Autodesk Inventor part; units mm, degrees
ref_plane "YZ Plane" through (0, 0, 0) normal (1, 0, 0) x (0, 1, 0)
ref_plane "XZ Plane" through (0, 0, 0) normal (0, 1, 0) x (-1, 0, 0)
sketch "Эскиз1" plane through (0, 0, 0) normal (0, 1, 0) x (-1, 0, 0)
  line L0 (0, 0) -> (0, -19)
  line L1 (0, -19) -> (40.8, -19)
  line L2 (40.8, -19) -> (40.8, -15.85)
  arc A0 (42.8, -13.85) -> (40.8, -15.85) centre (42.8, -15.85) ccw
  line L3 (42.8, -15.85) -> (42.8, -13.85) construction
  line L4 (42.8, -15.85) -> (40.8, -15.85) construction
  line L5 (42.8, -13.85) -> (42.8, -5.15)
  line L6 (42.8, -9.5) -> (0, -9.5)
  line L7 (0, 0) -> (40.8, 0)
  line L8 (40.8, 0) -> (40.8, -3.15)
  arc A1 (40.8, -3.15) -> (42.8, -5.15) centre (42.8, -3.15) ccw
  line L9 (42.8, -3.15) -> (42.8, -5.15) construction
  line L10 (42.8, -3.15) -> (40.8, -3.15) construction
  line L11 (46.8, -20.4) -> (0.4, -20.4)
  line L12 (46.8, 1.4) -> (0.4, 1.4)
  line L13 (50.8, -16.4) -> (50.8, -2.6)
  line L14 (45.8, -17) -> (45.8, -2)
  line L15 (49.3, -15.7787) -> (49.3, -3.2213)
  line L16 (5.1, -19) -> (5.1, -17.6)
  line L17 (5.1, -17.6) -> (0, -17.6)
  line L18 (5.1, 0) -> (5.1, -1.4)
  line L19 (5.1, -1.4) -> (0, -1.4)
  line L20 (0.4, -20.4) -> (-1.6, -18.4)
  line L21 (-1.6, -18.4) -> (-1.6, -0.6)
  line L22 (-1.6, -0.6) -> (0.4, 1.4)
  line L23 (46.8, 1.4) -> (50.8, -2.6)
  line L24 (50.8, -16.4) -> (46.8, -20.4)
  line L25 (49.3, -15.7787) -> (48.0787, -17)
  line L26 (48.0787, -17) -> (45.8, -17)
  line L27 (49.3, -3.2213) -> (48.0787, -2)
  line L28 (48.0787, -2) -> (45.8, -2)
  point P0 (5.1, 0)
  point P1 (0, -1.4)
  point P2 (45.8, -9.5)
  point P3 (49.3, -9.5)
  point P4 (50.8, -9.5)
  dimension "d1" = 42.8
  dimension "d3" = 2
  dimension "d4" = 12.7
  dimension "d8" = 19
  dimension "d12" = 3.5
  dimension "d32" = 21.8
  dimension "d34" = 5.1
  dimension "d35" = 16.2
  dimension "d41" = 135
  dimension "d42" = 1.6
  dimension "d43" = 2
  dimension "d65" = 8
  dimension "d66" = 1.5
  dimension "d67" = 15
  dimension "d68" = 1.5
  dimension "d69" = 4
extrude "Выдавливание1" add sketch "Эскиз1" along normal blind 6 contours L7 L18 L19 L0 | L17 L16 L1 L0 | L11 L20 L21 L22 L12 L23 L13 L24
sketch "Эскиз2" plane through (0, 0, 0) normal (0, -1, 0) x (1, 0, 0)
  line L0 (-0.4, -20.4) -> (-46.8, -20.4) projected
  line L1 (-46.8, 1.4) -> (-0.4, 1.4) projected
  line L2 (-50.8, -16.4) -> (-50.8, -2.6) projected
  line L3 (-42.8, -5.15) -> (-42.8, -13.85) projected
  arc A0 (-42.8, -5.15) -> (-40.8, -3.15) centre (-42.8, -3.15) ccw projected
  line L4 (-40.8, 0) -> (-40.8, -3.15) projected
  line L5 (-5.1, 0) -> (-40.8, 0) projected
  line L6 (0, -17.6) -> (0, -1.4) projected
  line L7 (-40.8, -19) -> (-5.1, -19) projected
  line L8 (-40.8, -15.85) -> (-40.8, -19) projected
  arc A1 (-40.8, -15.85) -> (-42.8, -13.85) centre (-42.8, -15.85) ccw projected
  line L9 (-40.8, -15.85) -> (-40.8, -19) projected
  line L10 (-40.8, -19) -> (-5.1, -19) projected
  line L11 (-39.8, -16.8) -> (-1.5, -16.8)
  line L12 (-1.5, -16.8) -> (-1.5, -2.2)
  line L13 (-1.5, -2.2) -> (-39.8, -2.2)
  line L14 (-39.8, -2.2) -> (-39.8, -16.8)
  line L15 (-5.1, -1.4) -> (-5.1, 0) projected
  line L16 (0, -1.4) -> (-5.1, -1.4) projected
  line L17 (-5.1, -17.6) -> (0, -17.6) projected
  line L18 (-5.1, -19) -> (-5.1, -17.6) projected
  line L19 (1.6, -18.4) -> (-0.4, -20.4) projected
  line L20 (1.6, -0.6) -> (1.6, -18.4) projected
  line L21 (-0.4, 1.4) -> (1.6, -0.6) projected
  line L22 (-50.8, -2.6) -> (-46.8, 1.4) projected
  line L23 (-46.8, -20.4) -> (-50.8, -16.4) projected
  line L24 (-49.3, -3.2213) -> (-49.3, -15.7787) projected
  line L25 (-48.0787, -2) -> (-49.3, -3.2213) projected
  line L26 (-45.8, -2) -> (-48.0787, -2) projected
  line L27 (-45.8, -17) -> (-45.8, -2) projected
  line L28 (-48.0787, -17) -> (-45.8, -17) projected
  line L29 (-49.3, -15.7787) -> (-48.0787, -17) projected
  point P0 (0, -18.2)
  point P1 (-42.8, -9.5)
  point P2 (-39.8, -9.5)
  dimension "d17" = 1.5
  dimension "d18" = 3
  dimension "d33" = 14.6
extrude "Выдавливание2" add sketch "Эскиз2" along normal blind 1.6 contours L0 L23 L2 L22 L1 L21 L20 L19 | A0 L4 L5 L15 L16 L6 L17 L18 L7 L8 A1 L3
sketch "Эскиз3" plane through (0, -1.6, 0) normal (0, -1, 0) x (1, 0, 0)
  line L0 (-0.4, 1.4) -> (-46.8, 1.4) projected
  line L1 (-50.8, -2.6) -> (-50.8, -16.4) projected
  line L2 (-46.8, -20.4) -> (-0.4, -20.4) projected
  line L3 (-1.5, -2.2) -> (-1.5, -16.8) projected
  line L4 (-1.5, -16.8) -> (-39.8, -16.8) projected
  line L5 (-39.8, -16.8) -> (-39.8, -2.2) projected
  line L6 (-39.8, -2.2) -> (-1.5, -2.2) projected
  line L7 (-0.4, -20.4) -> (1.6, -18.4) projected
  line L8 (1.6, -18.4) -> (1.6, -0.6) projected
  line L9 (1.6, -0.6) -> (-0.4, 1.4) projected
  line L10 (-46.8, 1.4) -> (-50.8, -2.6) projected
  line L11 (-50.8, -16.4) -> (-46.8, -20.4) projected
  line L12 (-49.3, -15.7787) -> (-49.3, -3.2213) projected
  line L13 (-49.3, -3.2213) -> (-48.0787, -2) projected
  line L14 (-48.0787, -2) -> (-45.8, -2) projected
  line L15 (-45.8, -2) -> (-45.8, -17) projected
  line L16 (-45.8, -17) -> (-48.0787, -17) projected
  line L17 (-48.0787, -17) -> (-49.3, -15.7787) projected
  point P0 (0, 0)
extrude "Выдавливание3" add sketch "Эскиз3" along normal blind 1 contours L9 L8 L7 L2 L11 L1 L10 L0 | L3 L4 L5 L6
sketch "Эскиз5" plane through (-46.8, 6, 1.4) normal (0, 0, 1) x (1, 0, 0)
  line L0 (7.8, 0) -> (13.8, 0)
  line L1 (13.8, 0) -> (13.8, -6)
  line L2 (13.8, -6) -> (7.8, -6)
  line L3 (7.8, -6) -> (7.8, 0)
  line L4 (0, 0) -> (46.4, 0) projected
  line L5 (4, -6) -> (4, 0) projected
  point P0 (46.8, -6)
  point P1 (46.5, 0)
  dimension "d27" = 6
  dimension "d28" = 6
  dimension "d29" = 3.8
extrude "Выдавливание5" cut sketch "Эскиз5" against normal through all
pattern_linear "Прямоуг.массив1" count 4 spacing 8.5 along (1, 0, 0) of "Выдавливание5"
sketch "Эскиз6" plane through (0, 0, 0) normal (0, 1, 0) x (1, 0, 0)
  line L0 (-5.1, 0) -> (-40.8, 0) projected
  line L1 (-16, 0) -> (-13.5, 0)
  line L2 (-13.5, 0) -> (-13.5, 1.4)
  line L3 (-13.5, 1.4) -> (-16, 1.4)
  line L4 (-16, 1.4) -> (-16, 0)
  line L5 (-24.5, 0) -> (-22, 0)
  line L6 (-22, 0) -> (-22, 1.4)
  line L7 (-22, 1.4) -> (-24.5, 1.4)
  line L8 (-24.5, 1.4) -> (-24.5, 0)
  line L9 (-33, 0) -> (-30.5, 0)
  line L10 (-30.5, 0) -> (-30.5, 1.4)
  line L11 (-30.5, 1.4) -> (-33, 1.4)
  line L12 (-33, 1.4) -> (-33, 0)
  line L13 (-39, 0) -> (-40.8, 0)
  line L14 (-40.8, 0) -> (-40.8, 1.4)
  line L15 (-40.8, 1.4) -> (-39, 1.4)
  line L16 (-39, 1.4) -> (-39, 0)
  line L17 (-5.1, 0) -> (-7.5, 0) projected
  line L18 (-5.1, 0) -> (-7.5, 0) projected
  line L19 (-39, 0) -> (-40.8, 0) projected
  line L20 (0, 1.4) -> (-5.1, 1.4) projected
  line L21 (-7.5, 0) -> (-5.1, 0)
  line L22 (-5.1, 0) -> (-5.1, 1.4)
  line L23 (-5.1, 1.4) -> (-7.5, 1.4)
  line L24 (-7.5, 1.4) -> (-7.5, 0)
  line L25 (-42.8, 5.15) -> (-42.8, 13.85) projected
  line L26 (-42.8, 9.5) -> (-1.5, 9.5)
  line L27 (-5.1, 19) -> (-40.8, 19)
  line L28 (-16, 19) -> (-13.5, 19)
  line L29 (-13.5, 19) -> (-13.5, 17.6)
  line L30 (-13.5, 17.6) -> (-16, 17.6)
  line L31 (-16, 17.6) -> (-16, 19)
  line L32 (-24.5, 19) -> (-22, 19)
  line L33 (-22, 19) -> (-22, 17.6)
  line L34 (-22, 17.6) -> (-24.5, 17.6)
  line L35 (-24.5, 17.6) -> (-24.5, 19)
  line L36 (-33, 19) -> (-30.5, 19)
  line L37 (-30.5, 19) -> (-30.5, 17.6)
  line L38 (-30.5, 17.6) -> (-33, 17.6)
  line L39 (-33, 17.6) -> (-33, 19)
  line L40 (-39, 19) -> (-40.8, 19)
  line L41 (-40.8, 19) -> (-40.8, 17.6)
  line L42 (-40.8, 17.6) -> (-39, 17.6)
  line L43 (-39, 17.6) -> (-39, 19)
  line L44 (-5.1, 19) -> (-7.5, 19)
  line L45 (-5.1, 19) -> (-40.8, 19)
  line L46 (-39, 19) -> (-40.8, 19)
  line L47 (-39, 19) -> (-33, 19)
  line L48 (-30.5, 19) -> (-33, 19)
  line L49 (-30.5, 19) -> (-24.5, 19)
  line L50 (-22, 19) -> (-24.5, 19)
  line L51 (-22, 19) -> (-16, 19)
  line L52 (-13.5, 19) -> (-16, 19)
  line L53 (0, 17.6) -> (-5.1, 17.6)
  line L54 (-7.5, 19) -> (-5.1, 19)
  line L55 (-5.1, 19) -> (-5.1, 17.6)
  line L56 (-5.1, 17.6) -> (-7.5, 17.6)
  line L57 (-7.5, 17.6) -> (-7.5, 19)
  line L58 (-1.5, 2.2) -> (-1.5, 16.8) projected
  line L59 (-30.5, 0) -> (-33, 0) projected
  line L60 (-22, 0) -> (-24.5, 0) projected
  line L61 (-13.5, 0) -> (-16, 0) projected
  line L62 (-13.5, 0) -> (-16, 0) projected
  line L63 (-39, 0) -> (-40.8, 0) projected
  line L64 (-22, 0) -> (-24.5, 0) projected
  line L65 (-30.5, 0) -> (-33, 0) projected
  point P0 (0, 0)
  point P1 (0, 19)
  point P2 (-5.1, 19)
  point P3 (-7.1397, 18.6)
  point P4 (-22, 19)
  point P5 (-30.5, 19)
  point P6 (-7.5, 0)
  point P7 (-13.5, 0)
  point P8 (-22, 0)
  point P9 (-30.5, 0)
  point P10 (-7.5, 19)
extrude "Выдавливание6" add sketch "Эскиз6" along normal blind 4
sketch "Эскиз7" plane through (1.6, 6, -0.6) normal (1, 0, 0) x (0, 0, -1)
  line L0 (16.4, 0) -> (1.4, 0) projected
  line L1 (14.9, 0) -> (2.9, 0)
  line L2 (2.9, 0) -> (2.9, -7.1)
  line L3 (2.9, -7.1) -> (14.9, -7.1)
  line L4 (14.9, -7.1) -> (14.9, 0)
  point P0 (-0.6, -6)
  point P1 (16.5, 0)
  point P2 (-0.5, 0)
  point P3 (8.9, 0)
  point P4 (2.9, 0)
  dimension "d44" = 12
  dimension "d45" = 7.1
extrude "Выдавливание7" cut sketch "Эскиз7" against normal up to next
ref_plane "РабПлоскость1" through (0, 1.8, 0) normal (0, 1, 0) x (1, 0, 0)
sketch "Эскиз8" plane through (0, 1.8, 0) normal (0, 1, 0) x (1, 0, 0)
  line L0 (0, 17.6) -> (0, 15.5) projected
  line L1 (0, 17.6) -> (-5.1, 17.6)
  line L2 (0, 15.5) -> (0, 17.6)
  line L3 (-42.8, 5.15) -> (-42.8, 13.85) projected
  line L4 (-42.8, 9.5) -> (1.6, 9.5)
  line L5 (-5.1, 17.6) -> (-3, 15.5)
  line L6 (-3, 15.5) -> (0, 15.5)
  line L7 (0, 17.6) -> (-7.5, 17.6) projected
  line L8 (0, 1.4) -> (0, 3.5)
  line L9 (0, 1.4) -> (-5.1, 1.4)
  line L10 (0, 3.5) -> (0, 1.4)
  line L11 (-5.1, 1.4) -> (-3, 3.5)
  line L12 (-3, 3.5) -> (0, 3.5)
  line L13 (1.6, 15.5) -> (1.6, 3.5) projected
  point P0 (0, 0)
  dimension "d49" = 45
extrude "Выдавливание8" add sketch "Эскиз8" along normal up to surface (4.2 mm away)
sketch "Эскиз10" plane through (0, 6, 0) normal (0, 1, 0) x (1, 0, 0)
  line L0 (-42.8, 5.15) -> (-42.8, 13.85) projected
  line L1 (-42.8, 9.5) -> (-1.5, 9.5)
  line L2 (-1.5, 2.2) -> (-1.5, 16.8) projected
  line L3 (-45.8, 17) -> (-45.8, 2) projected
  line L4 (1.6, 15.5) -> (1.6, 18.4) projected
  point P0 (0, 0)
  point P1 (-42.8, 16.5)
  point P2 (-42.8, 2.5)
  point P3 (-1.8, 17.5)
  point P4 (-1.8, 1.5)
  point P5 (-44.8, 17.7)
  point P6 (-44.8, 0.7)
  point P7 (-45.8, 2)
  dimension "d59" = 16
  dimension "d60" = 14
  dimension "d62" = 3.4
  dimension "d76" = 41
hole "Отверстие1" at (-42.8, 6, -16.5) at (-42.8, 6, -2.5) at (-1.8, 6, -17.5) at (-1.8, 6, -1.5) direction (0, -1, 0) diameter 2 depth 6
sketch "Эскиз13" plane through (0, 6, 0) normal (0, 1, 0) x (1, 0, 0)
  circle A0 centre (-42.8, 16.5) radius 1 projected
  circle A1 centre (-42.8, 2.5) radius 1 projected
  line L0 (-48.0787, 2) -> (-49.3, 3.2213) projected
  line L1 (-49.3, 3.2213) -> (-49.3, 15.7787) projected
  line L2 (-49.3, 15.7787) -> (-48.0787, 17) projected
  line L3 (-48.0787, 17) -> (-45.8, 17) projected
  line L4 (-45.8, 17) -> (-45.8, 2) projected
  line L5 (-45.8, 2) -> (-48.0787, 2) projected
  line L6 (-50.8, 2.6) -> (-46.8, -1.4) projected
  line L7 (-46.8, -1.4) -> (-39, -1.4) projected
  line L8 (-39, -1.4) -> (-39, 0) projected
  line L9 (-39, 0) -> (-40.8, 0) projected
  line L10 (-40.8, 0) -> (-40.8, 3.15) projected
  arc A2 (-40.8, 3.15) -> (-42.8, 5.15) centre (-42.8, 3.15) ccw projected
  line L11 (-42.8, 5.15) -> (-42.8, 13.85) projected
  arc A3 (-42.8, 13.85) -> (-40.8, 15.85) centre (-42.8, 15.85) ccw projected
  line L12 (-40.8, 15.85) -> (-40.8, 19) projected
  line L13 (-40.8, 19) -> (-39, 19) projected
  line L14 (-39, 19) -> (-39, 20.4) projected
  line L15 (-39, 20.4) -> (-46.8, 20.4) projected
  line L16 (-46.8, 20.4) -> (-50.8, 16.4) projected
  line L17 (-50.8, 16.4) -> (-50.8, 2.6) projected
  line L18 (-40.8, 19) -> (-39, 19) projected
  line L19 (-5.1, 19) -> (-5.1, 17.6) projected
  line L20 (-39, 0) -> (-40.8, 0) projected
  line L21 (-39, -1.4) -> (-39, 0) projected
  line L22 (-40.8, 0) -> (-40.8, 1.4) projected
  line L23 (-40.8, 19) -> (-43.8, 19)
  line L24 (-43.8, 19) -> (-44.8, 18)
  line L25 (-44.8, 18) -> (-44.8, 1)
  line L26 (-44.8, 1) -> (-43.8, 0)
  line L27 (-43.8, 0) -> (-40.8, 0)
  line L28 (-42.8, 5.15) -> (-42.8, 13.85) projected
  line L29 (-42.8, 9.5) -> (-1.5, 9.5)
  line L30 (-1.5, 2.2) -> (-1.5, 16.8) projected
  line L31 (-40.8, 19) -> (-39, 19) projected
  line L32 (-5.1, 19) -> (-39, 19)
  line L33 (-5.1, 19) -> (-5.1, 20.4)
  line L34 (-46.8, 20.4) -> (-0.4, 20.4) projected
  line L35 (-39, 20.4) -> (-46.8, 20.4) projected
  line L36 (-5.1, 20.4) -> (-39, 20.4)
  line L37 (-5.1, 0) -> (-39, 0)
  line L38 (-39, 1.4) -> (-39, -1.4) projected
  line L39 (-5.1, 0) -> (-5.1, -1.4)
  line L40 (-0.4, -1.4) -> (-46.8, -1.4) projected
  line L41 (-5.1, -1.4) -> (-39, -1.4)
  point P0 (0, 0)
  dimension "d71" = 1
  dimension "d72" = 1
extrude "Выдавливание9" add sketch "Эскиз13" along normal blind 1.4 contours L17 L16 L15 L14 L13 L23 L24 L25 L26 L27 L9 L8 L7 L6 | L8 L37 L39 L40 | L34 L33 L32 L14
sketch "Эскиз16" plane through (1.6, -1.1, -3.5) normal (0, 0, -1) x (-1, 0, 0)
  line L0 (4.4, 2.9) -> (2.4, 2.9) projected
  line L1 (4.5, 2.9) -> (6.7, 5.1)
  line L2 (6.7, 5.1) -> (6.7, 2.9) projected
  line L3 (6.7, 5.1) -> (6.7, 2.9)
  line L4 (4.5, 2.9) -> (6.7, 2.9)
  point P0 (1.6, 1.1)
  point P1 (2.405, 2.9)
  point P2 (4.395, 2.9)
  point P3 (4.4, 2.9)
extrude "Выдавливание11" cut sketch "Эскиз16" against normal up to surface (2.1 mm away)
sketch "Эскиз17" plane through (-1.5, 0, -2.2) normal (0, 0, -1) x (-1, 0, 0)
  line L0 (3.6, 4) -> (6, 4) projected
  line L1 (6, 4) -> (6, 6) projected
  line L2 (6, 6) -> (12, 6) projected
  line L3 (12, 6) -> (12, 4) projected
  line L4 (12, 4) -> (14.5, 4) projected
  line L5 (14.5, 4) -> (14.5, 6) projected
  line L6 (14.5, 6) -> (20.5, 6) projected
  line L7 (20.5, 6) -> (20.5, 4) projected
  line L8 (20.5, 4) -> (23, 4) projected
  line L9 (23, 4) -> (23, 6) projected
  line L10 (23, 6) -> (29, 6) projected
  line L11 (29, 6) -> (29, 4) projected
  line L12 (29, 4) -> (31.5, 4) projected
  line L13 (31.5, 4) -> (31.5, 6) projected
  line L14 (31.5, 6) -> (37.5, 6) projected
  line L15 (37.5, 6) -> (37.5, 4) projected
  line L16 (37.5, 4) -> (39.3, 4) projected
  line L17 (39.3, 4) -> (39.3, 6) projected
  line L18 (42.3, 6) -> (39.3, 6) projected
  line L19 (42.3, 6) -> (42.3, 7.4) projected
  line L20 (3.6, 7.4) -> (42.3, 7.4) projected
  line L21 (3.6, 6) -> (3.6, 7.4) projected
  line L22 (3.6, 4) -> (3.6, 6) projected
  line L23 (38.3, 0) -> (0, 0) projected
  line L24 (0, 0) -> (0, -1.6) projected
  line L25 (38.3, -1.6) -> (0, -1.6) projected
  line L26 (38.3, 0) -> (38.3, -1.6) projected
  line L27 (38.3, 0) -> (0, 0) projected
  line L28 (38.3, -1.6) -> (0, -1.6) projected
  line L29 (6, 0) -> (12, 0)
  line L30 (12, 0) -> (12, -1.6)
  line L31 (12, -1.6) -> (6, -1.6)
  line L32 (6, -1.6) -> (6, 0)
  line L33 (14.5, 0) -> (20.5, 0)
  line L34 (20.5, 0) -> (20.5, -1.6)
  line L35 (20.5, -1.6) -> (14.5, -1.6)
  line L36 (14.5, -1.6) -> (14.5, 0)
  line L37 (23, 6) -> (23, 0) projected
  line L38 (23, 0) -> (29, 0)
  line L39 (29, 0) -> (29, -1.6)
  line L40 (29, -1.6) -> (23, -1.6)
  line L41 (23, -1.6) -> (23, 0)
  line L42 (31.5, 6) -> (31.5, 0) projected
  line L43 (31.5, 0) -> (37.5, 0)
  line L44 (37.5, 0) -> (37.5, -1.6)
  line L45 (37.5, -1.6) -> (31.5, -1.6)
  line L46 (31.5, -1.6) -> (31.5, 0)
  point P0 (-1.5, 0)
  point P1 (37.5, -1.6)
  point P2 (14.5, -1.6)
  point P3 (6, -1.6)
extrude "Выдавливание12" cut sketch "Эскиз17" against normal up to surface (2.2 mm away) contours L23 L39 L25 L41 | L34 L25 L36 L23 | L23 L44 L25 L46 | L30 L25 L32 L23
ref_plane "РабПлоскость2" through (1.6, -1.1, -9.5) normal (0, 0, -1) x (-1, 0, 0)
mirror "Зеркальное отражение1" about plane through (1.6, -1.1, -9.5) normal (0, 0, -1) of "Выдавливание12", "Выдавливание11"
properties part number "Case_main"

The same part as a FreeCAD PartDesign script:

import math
import FreeCAD as App
import Part
import Sketcher
from FreeCAD import Vector


def add_polygon(sketch, points):
    """Adds a closed chain of lines whose ends are joined by coincident constraints."""
    first, n = sketch.GeometryCount, len(points)
    for a, b in zip(points, points[1:] + points[:1]):
        sketch.addGeometry(Part.LineSegment(App.Vector(*a, 0), App.Vector(*b, 0)), False)
    for i in range(n):
        sketch.addConstraint(Sketcher.Constraint("Coincident", first + i, 2, first + (i + 1) % n, 1))

doc = App.newDocument("Part")
body = doc.addObject("PartDesign::Body", "Body")

sketch1 = body.newObject("Sketcher::SketchObject", "Sketch")
sketch1.AttachmentSupport = (doc.getObject("XZ_Plane"), [""])
sketch1.MapMode = "FlatFace"
add_polygon(sketch1, [(-0.4, -20.4), (-46.8, -20.4), (-50.8, -16.4), (-50.8, -2.6), (-46.8, 1.4), (-0.4, 1.4), (1.6, -0.6), (1.6, -18.4)])
sketch1.addGeometry(Part.LineSegment(Vector(-5.1, -1.4, 0), Vector(-5.1, 0, 0)), False)
sketch1.addGeometry(Part.LineSegment(Vector(-5.1, 0, 0), Vector(-40.8, 0, 0)), False)
sketch1.addGeometry(Part.LineSegment(Vector(-40.8, 0, 0), Vector(-40.8, -3.1, 0)), False)
sketch1.addGeometry(Part.ArcOfCircle(Part.Circle(Vector(-42.8, -3.1, 0), Vector(0, 0, 1), 2), math.radians(-90), math.radians(0)), False)
sketch1.addGeometry(Part.LineSegment(Vector(-42.8, -5.2, 0), Vector(-42.8, -13.8, 0)), False)
sketch1.addGeometry(Part.ArcOfCircle(Part.Circle(Vector(-42.8, -15.8, 0), Vector(0, 0, 1), 2), math.radians(0), math.radians(90)), False)
sketch1.addGeometry(Part.LineSegment(Vector(-40.8, -15.8, 0), Vector(-40.8, -19, 0)), False)
sketch1.addGeometry(Part.LineSegment(Vector(-40.8, -19, 0), Vector(-5.1, -19, 0)), False)
sketch1.addGeometry(Part.LineSegment(Vector(-5.1, -19, 0), Vector(-5.1, -17.6, 0)), False)
sketch1.addGeometry(Part.LineSegment(Vector(-5.1, -17.6, 0), Vector(0, -17.6, 0)), False)
sketch1.addGeometry(Part.LineSegment(Vector(0, -17.6, 0), Vector(0, -1.4, 0)), False)
sketch1.addGeometry(Part.LineSegment(Vector(0, -1.4, 0), Vector(-5.1, -1.4, 0)), False)
add_polygon(sketch1, [(-45.8, -2), (-48.1, -2), (-49.3, -3.2), (-49.3, -15.8), (-48.1, -17), (-45.8, -17)])
sketch1.addConstraint(Sketcher.Constraint("Coincident", 8, 2, 9, 1))
sketch1.addConstraint(Sketcher.Constraint("Coincident", 9, 2, 10, 1))
sketch1.addConstraint(Sketcher.Constraint("Tangent", 10, 2, 11, 2))
sketch1.addConstraint(Sketcher.Constraint("Coincident", 11, 1, 12, 1))
sketch1.addConstraint(Sketcher.Constraint("Coincident", 12, 2, 13, 2))
sketch1.addConstraint(Sketcher.Constraint("Tangent", 13, 1, 14, 1))
sketch1.addConstraint(Sketcher.Constraint("Coincident", 14, 2, 15, 1))
sketch1.addConstraint(Sketcher.Constraint("Coincident", 15, 2, 16, 1))
sketch1.addConstraint(Sketcher.Constraint("Coincident", 16, 2, 17, 1))
sketch1.addConstraint(Sketcher.Constraint("Coincident", 17, 2, 18, 1))
sketch1.addConstraint(Sketcher.Constraint("Coincident", 18, 2, 19, 1))
sketch1.addConstraint(Sketcher.Constraint("Coincident", 19, 2, 8, 1))
sketch1.addConstraint(Sketcher.Constraint("Horizontal", 0))
sketch1.addConstraint(Sketcher.Constraint("Vertical", 2))
sketch1.addConstraint(Sketcher.Constraint("Horizontal", 4))
sketch1.addConstraint(Sketcher.Constraint("Vertical", 6))
sketch1.addConstraint(Sketcher.Constraint("Vertical", 8))
sketch1.addConstraint(Sketcher.Constraint("Horizontal", 9))
sketch1.addConstraint(Sketcher.Constraint("Vertical", 10))
sketch1.addConstraint(Sketcher.Constraint("Vertical", 12))
sketch1.addConstraint(Sketcher.Constraint("Vertical", 14))
sketch1.addConstraint(Sketcher.Constraint("Horizontal", 15))
sketch1.addConstraint(Sketcher.Constraint("Vertical", 16))
sketch1.addConstraint(Sketcher.Constraint("Horizontal", 17))
sketch1.addConstraint(Sketcher.Constraint("Vertical", 18))
sketch1.addConstraint(Sketcher.Constraint("Horizontal", 19))
sketch1.addConstraint(Sketcher.Constraint("Horizontal", 20))
sketch1.addConstraint(Sketcher.Constraint("Vertical", 22))
sketch1.addConstraint(Sketcher.Constraint("Horizontal", 24))
sketch1.addConstraint(Sketcher.Constraint("Vertical", 25))
sketch1.addConstraint(Sketcher.Constraint("Equal", 11, 13))
sketch1.addConstraint(Sketcher.Constraint("PointOnObject", 8, 2, -1))
sketch1.addConstraint(Sketcher.Constraint("PointOnObject", 17, 2, -2))
sketch1.addConstraint(Sketcher.Constraint("Perpendicular", 1, 3))
sketch1.addConstraint(Sketcher.Constraint("Perpendicular", 3, 5))
sketch1.addConstraint(Sketcher.Constraint("Perpendicular", 5, 7))
sketch1.addConstraint(Sketcher.Constraint("Parallel", 7, 21))
sketch1.addConstraint(Sketcher.Constraint("Perpendicular", 21, 23))
sketch1.addConstraint(Sketcher.Constraint("Vertical", 11, 3, 13, 3))
sketch1.addConstraint(Sketcher.Constraint("Vertical", 0, 2, 3, 2))
sketch1.addConstraint(Sketcher.Constraint("Vertical", 4, 2, 7, 2))
sketch1.addConstraint(Sketcher.Constraint("Vertical", 13, 3, 11, 1))
sketch1.addConstraint(Sketcher.Constraint("Vertical", 8, 2, 15, 2))
sketch1.addConstraint(Sketcher.Constraint("Vertical", 20, 2, 23, 2))
sketch1.addConstraint(Sketcher.Constraint("Equal", 10, 14))
sketch1.addConstraint(Sketcher.Constraint("Equal", 8, 16))
sketch1.addConstraint(Sketcher.Constraint("Equal", 1, 3))
sketch1.addConstraint(Sketcher.Constraint("Radius", 11, 2.0))
sketch1.addConstraint(Sketcher.Constraint("DistanceY", 25, 1, 25, 2, 15.0))
sketch1.addConstraint(Sketcher.Constraint("DistanceX", 17, 1, 17, 2, 5.1))
sketch1.addConstraint(Sketcher.Constraint("DistanceY", 18, 1, 18, 2, 16.2))
sketch1.addConstraint(Sketcher.Constraint("DistanceY", 14, 2, -1, 1, 19.0))
sketch1.addConstraint(Sketcher.Constraint("DistanceY", 20, 2, -1, 1, 2.0))
sketch1.addConstraint(Sketcher.Constraint("DistanceX", 0, 2, 13, 3, 4.0))
sketch1.addConstraint(Sketcher.Constraint("DistanceX", 1, 2, 0, 2, 4.0))
sketch1.addConstraint(Sketcher.Constraint("DistanceX", 4, 2, 5, 2, 2.0))
sketch1.addConstraint(Sketcher.Constraint("DistanceX", 11, 3, -1, 1, 42.8))
sketch1.addConstraint(Sketcher.Constraint("DistanceX", -1, 1, 5, 2, 1.6))
sketch1.addConstraint(Sketcher.Constraint("DistanceY", 13, 3, 11, 3, 12.7))
sketch1.addConstraint(Sketcher.Constraint("DistanceY", 0, 2, 3, 2, 21.8))
sketch1.addConstraint(Sketcher.Constraint("DistanceX", 2, 2, 21, 2, 1.5))
sketch1.addConstraint(Sketcher.Constraint("DistanceX", 22, 2, 24, 2, 3.5))
sketch1.addConstraint(Sketcher.Constraint("DistanceY", 16, 2, 5, 2, 17.0))
sketch1.addConstraint(Sketcher.Constraint("DistanceX", 20, 2, 20, 1, 2.2787))
pad1 = body.newObject("PartDesign::Pad", "Pad")
pad1.Profile = sketch1
pad1.Length = 6
pad1.Reversed = True

sketch2 = body.newObject("Sketcher::SketchObject", "Sketch001")
sketch2.AttachmentSupport = (doc.getObject("XZ_Plane"), [""])
sketch2.MapMode = "FlatFace"
add_polygon(sketch2, [(-46.8, -20.4), (-0.4, -20.4), (1.6, -18.4), (1.6, -0.6), (-0.4, 1.4), (-46.8, 1.4), (-50.8, -2.6), (-50.8, -16.4)])
add_polygon(sketch2, [(-49.3, -15.8), (-49.3, -3.2), (-48.1, -2), (-45.8, -2), (-45.8, -17), (-48.1, -17)])
add_polygon(sketch2, [(-1.5, -16.8), (-39.8, -16.8), (-39.8, -2.2), (-1.5, -2.2)])
sketch2.addConstraint(Sketcher.Constraint("Horizontal", 0))
sketch2.addConstraint(Sketcher.Constraint("Vertical", 2))
sketch2.addConstraint(Sketcher.Constraint("Horizontal", 4))
sketch2.addConstraint(Sketcher.Constraint("Vertical", 6))
sketch2.addConstraint(Sketcher.Constraint("Vertical", 8))
sketch2.addConstraint(Sketcher.Constraint("Horizontal", 10))
sketch2.addConstraint(Sketcher.Constraint("Vertical", 11))
sketch2.addConstraint(Sketcher.Constraint("Horizontal", 12))
sketch2.addConstraint(Sketcher.Constraint("Horizontal", 14))
sketch2.addConstraint(Sketcher.Constraint("Vertical", 15))
sketch2.addConstraint(Sketcher.Constraint("Horizontal", 16))
sketch2.addConstraint(Sketcher.Constraint("Vertical", 17))
sketch2.addConstraint(Sketcher.Constraint("Perpendicular", 1, 3))
sketch2.addConstraint(Sketcher.Constraint("Perpendicular", 3, 5))
sketch2.addConstraint(Sketcher.Constraint("Perpendicular", 5, 7))
sketch2.addConstraint(Sketcher.Constraint("Perpendicular", 7, 9))
sketch2.addConstraint(Sketcher.Constraint("Perpendicular", 9, 13))
sketch2.addConstraint(Sketcher.Constraint("Vertical", 0, 2, 3, 2))
sketch2.addConstraint(Sketcher.Constraint("Vertical", 4, 2, 7, 2))
sketch2.addConstraint(Sketcher.Constraint("Vertical", 9, 2, 12, 2))
sketch2.addConstraint(Sketcher.Constraint("Equal", 1, 3))
sketch2.addConstraint(Sketcher.Constraint("DistanceY", 15, 1, 15, 2, 14.6))
sketch2.addConstraint(Sketcher.Constraint("DistanceX", 16, 2, -1, 1, 1.5))
sketch2.addConstraint(Sketcher.Constraint("DistanceX", 5, 2, 8, 2, 1.5))
sketch2.addConstraint(Sketcher.Constraint("DistanceY", 11, 2, 11, 1, 15.0))
sketch2.addConstraint(Sketcher.Constraint("DistanceX", 0, 1, 0, 2, 46.4))
sketch2.addConstraint(Sketcher.Constraint("DistanceX", 14, 2, 14, 1, 38.3))
sketch2.addConstraint(Sketcher.Constraint("DistanceY", 2, 1, 2, 2, 17.8))
sketch2.addConstraint(Sketcher.Constraint("DistanceY", 6, 2, 6, 1, 13.8))
sketch2.addConstraint(Sketcher.Constraint("DistanceY", 9, 2, -1, 1, 2.0))
sketch2.addConstraint(Sketcher.Constraint("DistanceX", 0, 2, 1, 2, 2.0))
sketch2.addConstraint(Sketcher.Constraint("DistanceX", 4, 2, 10, 2, 1.0))
sketch2.addConstraint(Sketcher.Constraint("DistanceX", 11, 2, 14, 2, 6.0))
sketch2.addConstraint(Sketcher.Constraint("DistanceY", 0, 2, -1, 1, 20.4))
sketch2.addConstraint(Sketcher.Constraint("DistanceY", 14, 2, -1, 1, 16.8))
sketch2.addConstraint(Sketcher.Constraint("DistanceX", 10, 1, 10, 2, 2.2787))
pad2 = body.newObject("PartDesign::Pad", "Pad001")
pad2.Profile = sketch2
pad2.Length = 1.6

sketch3 = body.newObject("Sketcher::SketchObject", "Sketch002")
sketch3.AttachmentSupport = (doc.getObject("XZ_Plane"), [""])
sketch3.MapMode = "FlatFace"
sketch3.AttachmentOffset = App.Placement(Vector(0, 0, 1.6), App.Rotation())
add_polygon(sketch3, [(1.6, -0.6), (-0.4, 1.4), (-46.8, 1.4), (-50.8, -2.6), (-50.8, -16.4), (-46.8, -20.4), (-0.4, -20.4), (1.6, -18.4)])
add_polygon(sketch3, [(-48.1, -17), (-49.3, -15.8), (-49.3, -3.2), (-48.1, -2), (-45.8, -2), (-45.8, -17)])
sketch3.addConstraint(Sketcher.Constraint("Horizontal", 1))
sketch3.addConstraint(Sketcher.Constraint("Vertical", 3))
sketch3.addConstraint(Sketcher.Constraint("Horizontal", 5))
sketch3.addConstraint(Sketcher.Constraint("Vertical", 7))
sketch3.addConstraint(Sketcher.Constraint("Vertical", 9))
sketch3.addConstraint(Sketcher.Constraint("Horizontal", 11))
sketch3.addConstraint(Sketcher.Constraint("Vertical", 12))
sketch3.addConstraint(Sketcher.Constraint("Horizontal", 13))
sketch3.addConstraint(Sketcher.Constraint("Perpendicular", 0, 2))
sketch3.addConstraint(Sketcher.Constraint("Perpendicular", 2, 4))
sketch3.addConstraint(Sketcher.Constraint("Perpendicular", 4, 6))
sketch3.addConstraint(Sketcher.Constraint("Perpendicular", 6, 8))
sketch3.addConstraint(Sketcher.Constraint("Perpendicular", 8, 10))
sketch3.addConstraint(Sketcher.Constraint("Vertical", 1, 2, 4, 2))
sketch3.addConstraint(Sketcher.Constraint("Vertical", 0, 2, 5, 2))
sketch3.addConstraint(Sketcher.Constraint("Vertical", 10, 2, 13, 2))
sketch3.addConstraint(Sketcher.Constraint("Equal", 2, 4))
sketch3.addConstraint(Sketcher.Constraint("DistanceY", 12, 2, 12, 1, 15.0))
sketch3.addConstraint(Sketcher.Constraint("DistanceX", 1, 2, 1, 1, 46.4))
sketch3.addConstraint(Sketcher.Constraint("DistanceY", 3, 2, 3, 1, 13.8))
sketch3.addConstraint(Sketcher.Constraint("DistanceY", 7, 1, 7, 2, 17.8))
sketch3.addConstraint(Sketcher.Constraint("DistanceY", 10, 2, -1, 1, 2.0))
sketch3.addConstraint(Sketcher.Constraint("DistanceX", 2, 2, 1, 2, 4.0))
sketch3.addConstraint(Sketcher.Constraint("DistanceX", 1, 2, 11, 2, 1.0))
sketch3.addConstraint(Sketcher.Constraint("DistanceX", 0, 2, -1, 1, 0.4))
sketch3.addConstraint(Sketcher.Constraint("DistanceY", -1, 1, 0, 2, 1.4))
sketch3.addConstraint(Sketcher.Constraint("DistanceX", 8, 2, -1, 1, 49.3))
sketch3.addConstraint(Sketcher.Constraint("DistanceX", 11, 1, 11, 2, 2.2787))
pad3 = body.newObject("PartDesign::Pad", "Pad002")
pad3.Profile = sketch3
pad3.Length = 1

sketch4 = body.newObject("Sketcher::SketchObject", "Sketch003")
sketch4.AttachmentSupport = (doc.getObject("XY_Plane"), [""])
sketch4.MapMode = "FlatFace"
sketch4.AttachmentOffset = App.Placement(Vector(0, 0, 1.4), App.Rotation())
add_polygon(sketch4, [(-33, 6), (-39, 6), (-39, 0), (-33, 0)])
sketch4.addConstraint(Sketcher.Constraint("Horizontal", 0))
sketch4.addConstraint(Sketcher.Constraint("Vertical", 1))
sketch4.addConstraint(Sketcher.Constraint("Horizontal", 2))
sketch4.addConstraint(Sketcher.Constraint("Vertical", 3))
sketch4.addConstraint(Sketcher.Constraint("PointOnObject", 1, 2, -1))
sketch4.addConstraint(Sketcher.Constraint("Equal", 2, 1))
sketch4.addConstraint(Sketcher.Constraint("DistanceX", 0, 2, 0, 1, 6.0))
sketch4.addConstraint(Sketcher.Constraint("DistanceX", 0, 2, -1, 1, 39.0))
pocket1 = body.newObject("PartDesign::Pocket", "Pocket")
pocket1.Profile = sketch4
pocket1.Type = "ThroughAll"
doc.recompute()

linearpattern = body.newObject("PartDesign::LinearPattern", "LinearPattern")
linearpattern.Originals = [pocket1]
linearpattern.Direction = (doc.getObject("X_Axis"), [""])
linearpattern.Mode = "offset"
linearpattern.Offset = 8.5
linearpattern.Occurrences = 4
body.Tip = linearpattern

sketch5 = body.newObject("Sketcher::SketchObject", "Sketch004")
sketch5.AttachmentSupport = (doc.getObject("XZ_Plane"), [""])
sketch5.MapMode = "FlatFace"
add_polygon(sketch5, [(-40.8, 0), (-39, 0), (-39, -1.4), (-40.8, -1.4)])
add_polygon(sketch5, [(-33, 0), (-30.5, 0), (-30.5, -1.4), (-33, -1.4)])
add_polygon(sketch5, [(-24.5, 0), (-22, 0), (-22, -1.4), (-24.5, -1.4)])
add_polygon(sketch5, [(-16, 0), (-13.5, 0), (-13.5, -1.4), (-16, -1.4)])
add_polygon(sketch5, [(-7.5, 0), (-5.1, 0), (-5.1, -1.4), (-7.5, -1.4)])
add_polygon(sketch5, [(-5.1, -17.6), (-5.1, -19), (-7.5, -19), (-7.5, -17.6)])
add_polygon(sketch5, [(-39, -17.6), (-39, -19), (-40.8, -19), (-40.8, -17.6)])
add_polygon(sketch5, [(-30.5, -17.6), (-30.5, -19), (-33, -19), (-33, -17.6)])
add_polygon(sketch5, [(-22, -17.6), (-22, -19), (-24.5, -19), (-24.5, -17.6)])
add_polygon(sketch5, [(-13.5, -17.6), (-13.5, -19), (-16, -19), (-16, -17.6)])
sketch5.addConstraint(Sketcher.Constraint("Horizontal", 0))
sketch5.addConstraint(Sketcher.Constraint("Vertical", 1))
sketch5.addConstraint(Sketcher.Constraint("Horizontal", 2))
sketch5.addConstraint(Sketcher.Constraint("Vertical", 3))
sketch5.addConstraint(Sketcher.Constraint("Horizontal", 4))
sketch5.addConstraint(Sketcher.Constraint("Vertical", 5))
sketch5.addConstraint(Sketcher.Constraint("Horizontal", 6))
sketch5.addConstraint(Sketcher.Constraint("Vertical", 7))
sketch5.addConstraint(Sketcher.Constraint("Horizontal", 8))
sketch5.addConstraint(Sketcher.Constraint("Vertical", 9))
sketch5.addConstraint(Sketcher.Constraint("Horizontal", 10))
sketch5.addConstraint(Sketcher.Constraint("Vertical", 11))
sketch5.addConstraint(Sketcher.Constraint("Horizontal", 12))
sketch5.addConstraint(Sketcher.Constraint("Vertical", 13))
sketch5.addConstraint(Sketcher.Constraint("Horizontal", 14))
sketch5.addConstraint(Sketcher.Constraint("Vertical", 15))
sketch5.addConstraint(Sketcher.Constraint("Horizontal", 16))
sketch5.addConstraint(Sketcher.Constraint("Vertical", 17))
sketch5.addConstraint(Sketcher.Constraint("Horizontal", 18))
sketch5.addConstraint(Sketcher.Constraint("Vertical", 19))
sketch5.addConstraint(Sketcher.Constraint("Vertical", 20))
sketch5.addConstraint(Sketcher.Constraint("Horizontal", 21))
sketch5.addConstraint(Sketcher.Constraint("Vertical", 22))
sketch5.addConstraint(Sketcher.Constraint("Horizontal", 23))
sketch5.addConstraint(Sketcher.Constraint("Vertical", 24))
sketch5.addConstraint(Sketcher.Constraint("Horizontal", 25))
sketch5.addConstraint(Sketcher.Constraint("Vertical", 26))
sketch5.addConstraint(Sketcher.Constraint("Horizontal", 27))
sketch5.addConstraint(Sketcher.Constraint("Vertical", 28))
sketch5.addConstraint(Sketcher.Constraint("Horizontal", 29))
sketch5.addConstraint(Sketcher.Constraint("Vertical", 30))
sketch5.addConstraint(Sketcher.Constraint("Horizontal", 31))
sketch5.addConstraint(Sketcher.Constraint("Vertical", 32))
sketch5.addConstraint(Sketcher.Constraint("Horizontal", 33))
sketch5.addConstraint(Sketcher.Constraint("Vertical", 34))
sketch5.addConstraint(Sketcher.Constraint("Horizontal", 35))
sketch5.addConstraint(Sketcher.Constraint("Vertical", 36))
sketch5.addConstraint(Sketcher.Constraint("Horizontal", 37))
sketch5.addConstraint(Sketcher.Constraint("Vertical", 38))
sketch5.addConstraint(Sketcher.Constraint("Horizontal", 39))
sketch5.addConstraint(Sketcher.Constraint("PointOnObject", 0, 2, -1))
sketch5.addConstraint(Sketcher.Constraint("PointOnObject", 4, 2, -1))
sketch5.addConstraint(Sketcher.Constraint("PointOnObject", 8, 2, -1))
sketch5.addConstraint(Sketcher.Constraint("PointOnObject", 12, 2, -1))
sketch5.addConstraint(Sketcher.Constraint("PointOnObject", 16, 2, -1))
sketch5.addConstraint(Sketcher.Constraint("Horizontal", 2, 2, 5, 2))
sketch5.addConstraint(Sketcher.Constraint("Horizontal", 6, 2, 9, 2))
sketch5.addConstraint(Sketcher.Constraint("Horizontal", 10, 2, 13, 2))
sketch5.addConstraint(Sketcher.Constraint("Horizontal", 14, 2, 17, 2))
sketch5.addConstraint(Sketcher.Constraint("Horizontal", 21, 2, 24, 2))
sketch5.addConstraint(Sketcher.Constraint("Horizontal", 23, 2, 26, 2))
sketch5.addConstraint(Sketcher.Constraint("Horizontal", 25, 2, 28, 2))
sketch5.addConstraint(Sketcher.Constraint("Horizontal", 27, 2, 30, 2))
sketch5.addConstraint(Sketcher.Constraint("Horizontal", 29, 2, 32, 2))
sketch5.addConstraint(Sketcher.Constraint("Horizontal", 31, 2, 34, 2))
sketch5.addConstraint(Sketcher.Constraint("Horizontal", 33, 2, 36, 2))
sketch5.addConstraint(Sketcher.Constraint("Horizontal", 35, 2, 38, 2))
sketch5.addConstraint(Sketcher.Constraint("Vertical", 17, 2, 20, 2))
sketch5.addConstraint(Sketcher.Constraint("Vertical", 19, 2, 21, 2))
sketch5.addConstraint(Sketcher.Constraint("Vertical", 1, 2, 24, 2))
sketch5.addConstraint(Sketcher.Constraint("Vertical", 3, 2, 25, 2))
sketch5.addConstraint(Sketcher.Constraint("Vertical", 5, 2, 28, 2))
sketch5.addConstraint(Sketcher.Constraint("Vertical", 7, 2, 29, 2))
sketch5.addConstraint(Sketcher.Constraint("Vertical", 9, 2, 32, 2))
sketch5.addConstraint(Sketcher.Constraint("Vertical", 11, 2, 33, 2))
sketch5.addConstraint(Sketcher.Constraint("Vertical", 13, 2, 36, 2))
sketch5.addConstraint(Sketcher.Constraint("Vertical", 15, 2, 37, 2))
sketch5.addConstraint(Sketcher.Constraint("Equal", 6, 8))
sketch5.addConstraint(Sketcher.Constraint("Equal", 10, 12))
sketch5.addConstraint(Sketcher.Constraint("Equal", 19, 20))
sketch5.addConstraint(Sketcher.Constraint("DistanceX", 0, 1, 0, 2, 1.8))
sketch5.addConstraint(Sketcher.Constraint("DistanceX", 4, 1, 4, 2, 2.5))
sketch5.addConstraint(Sketcher.Constraint("DistanceX", 16, 1, 16, 2, 2.4))
sketch5.addConstraint(Sketcher.Constraint("DistanceY", 1, 2, 1, 1, 1.4))
sketch5.addConstraint(Sketcher.Constraint("DistanceX", 0, 2, -1, 1, 39.0))
sketch5.addConstraint(Sketcher.Constraint("DistanceX", 6, 2, -1, 1, 33.0))
sketch5.addConstraint(Sketcher.Constraint("DistanceX", 8, 2, -1, 1, 22.0))
sketch5.addConstraint(Sketcher.Constraint("DistanceX", 14, 2, -1, 1, 16.0))
sketch5.addConstraint(Sketcher.Constraint("DistanceY", 20, 2, -1, 1, 19.0))
sketch5.addConstraint(Sketcher.Constraint("DistanceX", 13, 2, 18, 2, 6.0))
pad4 = body.newObject("PartDesign::Pad", "Pad003")
pad4.Profile = sketch5
pad4.Length = 4
pad4.Reversed = True

sketch6 = body.newObject("Sketcher::SketchObject", "Sketch005")
sketch6.AttachmentSupport = (doc.getObject("YZ_Plane"), [""])
sketch6.MapMode = "FlatFace"
sketch6.AttachmentOffset = App.Placement(Vector(0, 0, 1.6), App.Rotation())
add_polygon(sketch6, [(-1, -16), (6, -16), (6, -4), (-1, -4)])
sketch6.addConstraint(Sketcher.Constraint("Horizontal", 0))
sketch6.addConstraint(Sketcher.Constraint("Vertical", 1))
sketch6.addConstraint(Sketcher.Constraint("Horizontal", 2))
sketch6.addConstraint(Sketcher.Constraint("Vertical", 3))
sketch6.addConstraint(Sketcher.Constraint("DistanceY", 1, 1, 1, 2, 12.0))
sketch6.addConstraint(Sketcher.Constraint("DistanceX", 0, 1, 0, 2, 7.1))
sketch6.addConstraint(Sketcher.Constraint("DistanceX", -1, 1, 0, 2, 6.0))
sketch6.addConstraint(Sketcher.Constraint("DistanceY", 0, 2, -1, 1, 15.5))
pocket2 = body.newObject("PartDesign::Pocket", "Pocket001")
pocket2.Profile = sketch6
pocket2.Length = 3.1

sketch7 = body.newObject("Sketcher::SketchObject", "Sketch006")
sketch7.AttachmentSupport = (doc.getObject("XZ_Plane"), [""])
sketch7.MapMode = "FlatFace"
sketch7.AttachmentOffset = App.Placement(Vector(0, 0, -1.8), App.Rotation())
add_polygon(sketch7, [(0, -15.5), (0, -17.6), (-5.1, -17.6), (-3, -15.5)])
add_polygon(sketch7, [(-5.1, -1.4), (0, -1.4), (0, -3.5), (-3, -3.5)])
sketch7.addConstraint(Sketcher.Constraint("Vertical", 0))
sketch7.addConstraint(Sketcher.Constraint("Horizontal", 1))
sketch7.addConstraint(Sketcher.Constraint("Horizontal", 3))
sketch7.addConstraint(Sketcher.Constraint("Horizontal", 4))
sketch7.addConstraint(Sketcher.Constraint("Vertical", 5))
sketch7.addConstraint(Sketcher.Constraint("Horizontal", 6))
sketch7.addConstraint(Sketcher.Constraint("PointOnObject", 0, 2, -2))
sketch7.addConstraint(Sketcher.Constraint("PointOnObject", 4, 2, -2))
sketch7.addConstraint(Sketcher.Constraint("Perpendicular", 2, 7))
sketch7.addConstraint(Sketcher.Constraint("Vertical", 2, 2, 6, 2))
sketch7.addConstraint(Sketcher.Constraint("Vertical", 1, 2, 7, 2))
sketch7.addConstraint(Sketcher.Constraint("Equal", 0, 5))
sketch7.addConstraint(Sketcher.Constraint("DistanceX", 3, 1, 3, 2, 3.0))
sketch7.addConstraint(Sketcher.Constraint("DistanceX", 1, 2, 1, 1, 5.1))
sketch7.addConstraint(Sketcher.Constraint("DistanceY", 3, 2, 5, 2, 12.0))
sketch7.addConstraint(Sketcher.Constraint("DistanceY", 0, 2, -1, 1, 17.6))
pad5 = body.newObject("PartDesign::Pad", "Pad004")
pad5.Profile = sketch7
pad5.Length = 4.2
pad5.Reversed = True

sketch8 = body.newObject("Sketcher::SketchObject", "Sketch007")
sketch8.AttachmentSupport = (doc.getObject("XZ_Plane"), [""])
sketch8.MapMode = "FlatFace"
sketch8.AttachmentOffset = App.Placement(Vector(0, 0, -6), App.Rotation())
sketch8.addGeometry(Part.Circle(Vector(-42.8, -16.5, 0), Vector(0, 0, 1), 1), False)
sketch8.addGeometry(Part.Circle(Vector(-42.8, -2.5, 0), Vector(0, 0, 1), 1), False)
sketch8.addGeometry(Part.Circle(Vector(-1.8, -17.5, 0), Vector(0, 0, 1), 1), False)
sketch8.addGeometry(Part.Circle(Vector(-1.8, -1.5, 0), Vector(0, 0, 1), 1), False)
sketch8.addConstraint(Sketcher.Constraint("Equal", 0, 1))
sketch8.addConstraint(Sketcher.Constraint("Equal", 1, 2))
sketch8.addConstraint(Sketcher.Constraint("Equal", 2, 3))
sketch8.addConstraint(Sketcher.Constraint("Vertical", 0, 3, 1, 3))
sketch8.addConstraint(Sketcher.Constraint("Vertical", 2, 3, 3, 3))
sketch8.addConstraint(Sketcher.Constraint("Diameter", 0, 2.0))
sketch8.addConstraint(Sketcher.Constraint("DistanceY", 0, 3, 1, 3, 14.0))
sketch8.addConstraint(Sketcher.Constraint("DistanceX", 0, 3, 2, 3, 41.0))
sketch8.addConstraint(Sketcher.Constraint("DistanceY", 2, 3, 0, 3, 1.0))
sketch8.addConstraint(Sketcher.Constraint("DistanceY", 2, 3, 3, 3, 16.0))
sketch8.addConstraint(Sketcher.Constraint("DistanceX", 0, 3, -1, 1, 42.8))
sketch8.addConstraint(Sketcher.Constraint("DistanceY", 0, 3, -1, 1, 16.5))
doc.recompute()
hole = body.newObject("PartDesign::Hole", "Hole")
hole.Profile = sketch8
hole.ThreadType = "None"
hole.Diameter = 2
hole.DepthType = "Dimension"
hole.Depth = 6
hole.DrillPoint = "Flat"
hole.Reversed = True

sketch9 = body.newObject("Sketcher::SketchObject", "Sketch008")
sketch9.AttachmentSupport = (doc.getObject("XZ_Plane"), [""])
sketch9.MapMode = "FlatFace"
sketch9.AttachmentOffset = App.Placement(Vector(0, 0, -6), App.Rotation())
add_polygon(sketch9, [(-50.8, -16.4), (-50.8, -2.6), (-46.8, 1.4), (-5.1, 1.4), (-5.1, 0), (-43.8, 0), (-44.8, -1), (-44.8, -18), (-43.8, -19), (-5.1, -19), (-5.1, -20.4), (-46.8, -20.4)])
add_polygon(sketch9, [(-45.8, -2), (-48.1, -2), (-49.3, -3.2), (-49.3, -15.8), (-48.1, -17), (-45.8, -17)])
sketch9.addConstraint(Sketcher.Constraint("Vertical", 0))
sketch9.addConstraint(Sketcher.Constraint("Horizontal", 2))
sketch9.addConstraint(Sketcher.Constraint("Vertical", 3))
sketch9.addConstraint(Sketcher.Constraint("Horizontal", 4))
sketch9.addConstraint(Sketcher.Constraint("Vertical", 6))
sketch9.addConstraint(Sketcher.Constraint("Horizontal", 8))
sketch9.addConstraint(Sketcher.Constraint("Vertical", 9))
sketch9.addConstraint(Sketcher.Constraint("Horizontal", 10))
sketch9.addConstraint(Sketcher.Constraint("Horizontal", 12))
sketch9.addConstraint(Sketcher.Constraint("Vertical", 14))
sketch9.addConstraint(Sketcher.Constraint("Horizontal", 16))
sketch9.addConstraint(Sketcher.Constraint("Vertical", 17))
sketch9.addConstraint(Sketcher.Constraint("PointOnObject", 3, 2, -1))
sketch9.addConstraint(Sketcher.Constraint("Parallel", 1, 5))
sketch9.addConstraint(Sketcher.Constraint("Perpendicular", 5, 7))
sketch9.addConstraint(Sketcher.Constraint("Parallel", 7, 11))
sketch9.addConstraint(Sketcher.Constraint("Perpendicular", 11, 13))
sketch9.addConstraint(Sketcher.Constraint("Perpendicular", 13, 15))
sketch9.addConstraint(Sketcher.Constraint("Vertical", 4, 2, 7, 2))
sketch9.addConstraint(Sketcher.Constraint("Vertical", 3, 2, 8, 2))
sketch9.addConstraint(Sketcher.Constraint("Vertical", 1, 2, 10, 2))
sketch9.addConstraint(Sketcher.Constraint("Vertical", 12, 2, 15, 2))
sketch9.addConstraint(Sketcher.Constraint("Equal", 3, 9))
sketch9.addConstraint(Sketcher.Constraint("Equal", 5, 7))
sketch9.addConstraint(Sketcher.Constraint("DistanceY", 5, 2, -1, 1, 1.0))
sketch9.addConstraint(Sketcher.Constraint("DistanceY", 12, 2, 5, 2, 1.0))
sketch9.addConstraint(Sketcher.Constraint("DistanceY", 6, 2, 15, 2, 1.0))
sketch9.addConstraint(Sketcher.Constraint("DistanceX", 16, 2, 6, 2, 1.0))
sketch9.addConstraint(Sketcher.Constraint("DistanceX", 10, 2, 16, 2, 1.0))
sketch9.addConstraint(Sketcher.Constraint("DistanceY", 6, 2, 6, 1, 17.0))
sketch9.addConstraint(Sketcher.Constraint("DistanceX", 2, 1, 2, 2, 41.7))
sketch9.addConstraint(Sketcher.Constraint("DistanceY", 0, 1, 0, 2, 13.8))
sketch9.addConstraint(Sketcher.Constraint("DistanceY", 3, 2, 3, 1, 1.4))
sketch9.addConstraint(Sketcher.Constraint("DistanceX", 0, 2, -1, 1, 50.8))
sketch9.addConstraint(Sketcher.Constraint("DistanceX", 13, 2, -1, 1, 49.3))
sketch9.addConstraint(Sketcher.Constraint("DistanceX", 12, 2, 12, 1, 2.2787))
pad6 = body.newObject("PartDesign::Pad", "Pad005")
pad6.Profile = sketch9
pad6.Length = 1.4
pad6.Reversed = True

sketch10 = body.newObject("Sketcher::SketchObject", "Sketch009")
sketch10.AttachmentSupport = (doc.getObject("XY_Plane"), [""])
sketch10.MapMode = "FlatFace"
sketch10.AttachmentOffset = App.Placement(Vector(0, 0, -3.5), App.Rotation())
add_polygon(sketch10, [(-5.1, 4), (-2.9, 1.8), (-5.1, 1.8)])
sketch10.addConstraint(Sketcher.Constraint("Horizontal", 1))
sketch10.addConstraint(Sketcher.Constraint("Vertical", 2))
sketch10.addConstraint(Sketcher.Constraint("Equal", 1, 2))
sketch10.addConstraint(Sketcher.Constraint("DistanceX", 1, 2, 1, 1, 2.2))
sketch10.addConstraint(Sketcher.Constraint("DistanceY", -1, 1, 2, 2, 4.0))
sketch10.addConstraint(Sketcher.Constraint("DistanceX", 0, 2, -1, 1, 2.9))
pocket3 = body.newObject("PartDesign::Pocket", "Pocket002")
pocket3.Profile = sketch10
pocket3.Length = 2.1
pocket3.Reversed = True

sketch11 = body.newObject("Sketcher::SketchObject", "Sketch010")
sketch11.AttachmentSupport = (doc.getObject("XY_Plane"), [""])
sketch11.MapMode = "FlatFace"
sketch11.AttachmentOffset = App.Placement(Vector(0, 0, -2.2), App.Rotation())
add_polygon(sketch11, [(-30.5, 0), (-24.5, 0), (-24.5, -1.6), (-30.5, -1.6)])
add_polygon(sketch11, [(-22, -1.6), (-22, 0), (-16, 0), (-16, -1.6)])
add_polygon(sketch11, [(-39, 0), (-33, 0), (-33, -1.6), (-39, -1.6)])
add_polygon(sketch11, [(-13.5, -1.6), (-13.5, 0), (-7.5, 0), (-7.5, -1.6)])
sketch11.addConstraint(Sketcher.Constraint("Horizontal", 0))
sketch11.addConstraint(Sketcher.Constraint("Vertical", 1))
sketch11.addConstraint(Sketcher.Constraint("Horizontal", 2))
sketch11.addConstraint(Sketcher.Constraint("Vertical", 3))
sketch11.addConstraint(Sketcher.Constraint("Vertical", 4))
sketch11.addConstraint(Sketcher.Constraint("Horizontal", 5))
sketch11.addConstraint(Sketcher.Constraint("Vertical", 6))
sketch11.addConstraint(Sketcher.Constraint("Horizontal", 7))
sketch11.addConstraint(Sketcher.Constraint("Horizontal", 8))
sketch11.addConstraint(Sketcher.Constraint("Vertical", 9))
sketch11.addConstraint(Sketcher.Constraint("Horizontal", 10))
sketch11.addConstraint(Sketcher.Constraint("Vertical", 11))
sketch11.addConstraint(Sketcher.Constraint("Vertical", 12))
sketch11.addConstraint(Sketcher.Constraint("Horizontal", 13))
sketch11.addConstraint(Sketcher.Constraint("Vertical", 14))
sketch11.addConstraint(Sketcher.Constraint("Horizontal", 15))
sketch11.addConstraint(Sketcher.Constraint("PointOnObject", 0, 2, -1))
sketch11.addConstraint(Sketcher.Constraint("PointOnObject", 4, 2, -1))
sketch11.addConstraint(Sketcher.Constraint("PointOnObject", 8, 2, -1))
sketch11.addConstraint(Sketcher.Constraint("PointOnObject", 12, 2, -1))
sketch11.addConstraint(Sketcher.Constraint("Horizontal", 2, 2, 6, 2))
sketch11.addConstraint(Sketcher.Constraint("Horizontal", 7, 2, 9, 2))
sketch11.addConstraint(Sketcher.Constraint("Horizontal", 10, 2, 14, 2))
sketch11.addConstraint(Sketcher.Constraint("Equal", 2, 5))
sketch11.addConstraint(Sketcher.Constraint("Equal", 7, 8))
sketch11.addConstraint(Sketcher.Constraint("Equal", 10, 13))
sketch11.addConstraint(Sketcher.Constraint("DistanceX", 0, 1, 0, 2, 6.0))
sketch11.addConstraint(Sketcher.Constraint("DistanceY", 1, 2, 1, 1, 1.6))
sketch11.addConstraint(Sketcher.Constraint("DistanceX", 4, 2, -1, 1, 22.0))
sketch11.addConstraint(Sketcher.Constraint("DistanceX", 8, 2, -1, 1, 33.0))
sketch11.addConstraint(Sketcher.Constraint("DistanceX", 0, 2, 12, 2, 11.0))
sketch11.addConstraint(Sketcher.Constraint("DistanceX", 0, 2, -1, 1, 24.5))
pocket4 = body.newObject("PartDesign::Pocket", "Pocket003")
pocket4.Profile = sketch11
pocket4.Length = 2.2
pocket4.Reversed = True
doc.recompute()

datumplane = body.newObject("PartDesign::Plane", "DatumPlane")
datumplane.AttachmentSupport = (doc.getObject("XY_Plane"), [""])
datumplane.MapMode = "FlatFace"
datumplane.AttachmentOffset = App.Placement(Vector(0, 0, -9.5), App.Rotation())
mirrored = body.newObject("PartDesign::Mirrored", "Mirrored")
mirrored.Originals = [pocket4, pocket3]
mirrored.MirrorPlane = (datumplane, [""])
body.Tip = mirrored

doc.recompute()
